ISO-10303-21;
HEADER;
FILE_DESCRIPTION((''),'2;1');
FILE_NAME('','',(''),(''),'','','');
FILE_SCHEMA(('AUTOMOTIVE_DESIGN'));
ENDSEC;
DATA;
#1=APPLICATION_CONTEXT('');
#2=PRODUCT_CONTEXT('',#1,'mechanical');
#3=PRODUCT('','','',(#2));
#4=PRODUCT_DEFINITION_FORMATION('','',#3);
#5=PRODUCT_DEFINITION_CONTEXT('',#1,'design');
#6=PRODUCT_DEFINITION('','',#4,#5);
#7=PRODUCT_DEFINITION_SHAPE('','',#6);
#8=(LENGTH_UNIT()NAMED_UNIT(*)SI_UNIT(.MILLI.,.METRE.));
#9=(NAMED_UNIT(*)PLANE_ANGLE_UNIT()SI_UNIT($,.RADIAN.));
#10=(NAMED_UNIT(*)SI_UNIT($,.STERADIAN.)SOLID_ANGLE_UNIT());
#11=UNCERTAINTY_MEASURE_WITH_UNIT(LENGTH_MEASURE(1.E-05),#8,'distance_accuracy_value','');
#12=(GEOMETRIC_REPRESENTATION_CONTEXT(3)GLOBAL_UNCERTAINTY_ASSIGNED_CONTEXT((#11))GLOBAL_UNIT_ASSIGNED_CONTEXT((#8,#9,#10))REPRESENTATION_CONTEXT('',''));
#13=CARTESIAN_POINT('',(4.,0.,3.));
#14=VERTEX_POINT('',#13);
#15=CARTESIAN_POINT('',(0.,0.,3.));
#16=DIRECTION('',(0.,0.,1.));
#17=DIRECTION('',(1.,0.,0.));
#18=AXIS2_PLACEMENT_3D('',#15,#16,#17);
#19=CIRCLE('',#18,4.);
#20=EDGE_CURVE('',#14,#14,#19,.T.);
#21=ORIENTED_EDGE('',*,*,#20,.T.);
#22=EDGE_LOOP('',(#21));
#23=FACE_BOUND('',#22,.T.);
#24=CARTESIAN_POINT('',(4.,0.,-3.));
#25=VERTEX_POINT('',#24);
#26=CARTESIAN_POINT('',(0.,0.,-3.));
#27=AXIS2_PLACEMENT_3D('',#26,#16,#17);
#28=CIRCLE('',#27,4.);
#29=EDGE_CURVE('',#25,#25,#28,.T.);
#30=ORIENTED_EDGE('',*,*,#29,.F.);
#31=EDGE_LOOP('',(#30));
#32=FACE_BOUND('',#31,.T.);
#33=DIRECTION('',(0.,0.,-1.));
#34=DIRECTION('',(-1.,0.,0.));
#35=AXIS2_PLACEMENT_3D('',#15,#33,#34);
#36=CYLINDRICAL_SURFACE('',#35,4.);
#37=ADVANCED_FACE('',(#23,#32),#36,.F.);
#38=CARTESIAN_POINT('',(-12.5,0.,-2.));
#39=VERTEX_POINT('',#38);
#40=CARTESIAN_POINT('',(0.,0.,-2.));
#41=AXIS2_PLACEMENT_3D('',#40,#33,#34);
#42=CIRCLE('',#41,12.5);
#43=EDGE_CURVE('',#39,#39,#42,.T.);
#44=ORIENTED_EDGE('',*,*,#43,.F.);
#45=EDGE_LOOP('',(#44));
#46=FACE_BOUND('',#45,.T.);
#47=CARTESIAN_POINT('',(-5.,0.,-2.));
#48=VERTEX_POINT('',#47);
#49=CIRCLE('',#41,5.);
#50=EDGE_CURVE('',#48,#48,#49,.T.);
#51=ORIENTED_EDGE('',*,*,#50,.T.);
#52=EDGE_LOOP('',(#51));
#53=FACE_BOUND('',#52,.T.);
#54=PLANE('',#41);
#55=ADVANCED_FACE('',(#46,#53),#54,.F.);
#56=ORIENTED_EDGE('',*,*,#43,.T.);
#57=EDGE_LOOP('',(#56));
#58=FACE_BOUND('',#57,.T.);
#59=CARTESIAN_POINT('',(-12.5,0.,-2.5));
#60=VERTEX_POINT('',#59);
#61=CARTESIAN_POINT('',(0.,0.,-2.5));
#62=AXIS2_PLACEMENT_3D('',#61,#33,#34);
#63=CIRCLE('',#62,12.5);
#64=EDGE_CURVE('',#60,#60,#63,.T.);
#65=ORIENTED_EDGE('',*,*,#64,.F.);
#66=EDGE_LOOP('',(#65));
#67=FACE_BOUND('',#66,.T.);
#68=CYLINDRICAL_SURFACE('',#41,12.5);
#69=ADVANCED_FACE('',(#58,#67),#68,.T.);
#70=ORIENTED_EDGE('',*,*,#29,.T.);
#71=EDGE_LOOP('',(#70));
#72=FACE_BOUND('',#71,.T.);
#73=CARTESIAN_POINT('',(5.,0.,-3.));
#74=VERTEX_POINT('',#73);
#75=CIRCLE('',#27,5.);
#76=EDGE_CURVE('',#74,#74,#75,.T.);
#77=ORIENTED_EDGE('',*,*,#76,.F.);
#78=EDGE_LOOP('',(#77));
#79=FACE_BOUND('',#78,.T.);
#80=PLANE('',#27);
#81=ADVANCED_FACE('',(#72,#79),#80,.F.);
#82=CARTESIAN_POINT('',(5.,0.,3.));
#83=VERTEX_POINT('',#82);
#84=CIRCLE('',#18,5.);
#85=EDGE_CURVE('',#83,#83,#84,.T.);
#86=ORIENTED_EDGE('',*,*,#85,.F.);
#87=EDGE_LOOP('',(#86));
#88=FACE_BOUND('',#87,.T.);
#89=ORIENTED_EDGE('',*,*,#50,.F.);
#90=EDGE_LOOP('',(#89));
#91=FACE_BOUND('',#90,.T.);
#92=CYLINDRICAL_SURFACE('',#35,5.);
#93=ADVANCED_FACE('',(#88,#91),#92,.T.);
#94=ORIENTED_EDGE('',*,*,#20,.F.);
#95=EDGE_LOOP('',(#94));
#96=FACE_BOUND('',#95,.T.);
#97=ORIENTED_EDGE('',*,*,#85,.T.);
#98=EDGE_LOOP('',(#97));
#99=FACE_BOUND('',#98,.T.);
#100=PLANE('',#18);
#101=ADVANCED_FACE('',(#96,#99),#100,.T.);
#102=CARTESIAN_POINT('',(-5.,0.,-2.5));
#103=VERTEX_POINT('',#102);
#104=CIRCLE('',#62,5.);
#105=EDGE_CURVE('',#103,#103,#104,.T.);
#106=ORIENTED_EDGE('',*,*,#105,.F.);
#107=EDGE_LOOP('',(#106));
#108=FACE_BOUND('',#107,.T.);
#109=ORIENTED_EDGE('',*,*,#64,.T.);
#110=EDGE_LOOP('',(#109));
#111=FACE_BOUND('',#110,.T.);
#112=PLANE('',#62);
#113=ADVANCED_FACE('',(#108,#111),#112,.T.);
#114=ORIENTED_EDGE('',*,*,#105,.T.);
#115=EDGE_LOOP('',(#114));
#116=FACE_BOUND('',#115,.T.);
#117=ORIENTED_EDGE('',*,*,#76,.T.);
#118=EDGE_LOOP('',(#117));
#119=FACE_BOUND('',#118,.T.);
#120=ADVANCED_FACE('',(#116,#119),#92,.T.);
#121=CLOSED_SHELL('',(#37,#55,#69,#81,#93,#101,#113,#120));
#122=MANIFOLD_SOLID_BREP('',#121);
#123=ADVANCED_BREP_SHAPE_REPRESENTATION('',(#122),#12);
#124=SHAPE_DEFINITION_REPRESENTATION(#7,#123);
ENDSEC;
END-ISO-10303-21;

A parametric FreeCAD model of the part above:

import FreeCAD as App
import Part
import Sketcher

V = App.Vector

doc = App.newDocument("Part")
params = doc.addObject("Spreadsheet::Sheet", "Params")
for row, (alias, value) in enumerate([
    ("sketch1_diameter", "10 mm"),
    ("sketch1_diameter2", "8 mm"),
    ("pad1_length", "6 mm"),
    ("sketch2_diameter", "25 mm"),
    ("sketch2_diameter2", "10 mm"),
    ("pad2_length", "0.5 mm"),
], start=1):
    params.set(f"A{row}", alias)
    params.set(f"B{row}", "=" + value)
    params.setAlias(f"B{row}", alias)

body = doc.addObject("PartDesign::Body", "Body")

# Sketch on XY plane
sketch1 = doc.addObject("Sketcher::SketchObject", "Sketch")
body.addObject(sketch1)
sketch1.AttachmentSupport = (doc.XY_Plane, [""])
sketch1.MapMode = "FlatFace"
sketch1.addGeometry(Part.Circle(V(0, 0, 0), V(0, 0, 1), 5), False)
sketch1.addGeometry(Part.Circle(V(0, 0, 0), V(0, 0, 1), 4), False)
sketch1.addConstraint(Sketcher.Constraint("Coincident", 0, 3, -1, 1))
sketch1.addConstraint(Sketcher.Constraint("Coincident", 1, 3, -1, 1))
sketch1.addConstraint(Sketcher.Constraint("Diameter", 0, 10.0))
sketch1.addConstraint(Sketcher.Constraint("Diameter", 1, 8.0))
sketch1.setExpression("Constraints[2]", "Params.sketch1_diameter")
sketch1.setExpression("Constraints[3]", "Params.sketch1_diameter2")
pad1 = doc.addObject("PartDesign::Pad", "Pad")
body.addObject(pad1)
pad1.Profile = sketch1
pad1.setExpression("Length", "Params.pad1_length")
pad1.Midplane = True

# Sketch on XY plane
sketch2 = doc.addObject("Sketcher::SketchObject", "Sketch001")
body.addObject(sketch2)
sketch2.AttachmentSupport = (doc.XY_Plane, [""])
sketch2.MapMode = "FlatFace"
sketch2.AttachmentOffset = App.Placement(V(0, 0, -2), App.Rotation())
sketch2.addGeometry(Part.Circle(V(0, 0, 0), V(0, 0, 1), 12), False)
sketch2.addGeometry(Part.Circle(V(0, 0, 0), V(0, 0, 1), 5), False)
sketch2.addConstraint(Sketcher.Constraint("Coincident", 0, 3, -1, 1))
sketch2.addConstraint(Sketcher.Constraint("Coincident", 1, 3, -1, 1))
sketch2.addConstraint(Sketcher.Constraint("Diameter", 0, 25.0))
sketch2.addConstraint(Sketcher.Constraint("Diameter", 1, 10.0))
sketch2.setExpression("Constraints[2]", "Params.sketch2_diameter")
sketch2.setExpression("Constraints[3]", "Params.sketch2_diameter2")
pad2 = doc.addObject("PartDesign::Pad", "Pad001")
body.addObject(pad2)
pad2.Profile = sketch2
pad2.setExpression("Length", "Params.pad2_length")
pad2.Reversed = True

doc.recompute()
